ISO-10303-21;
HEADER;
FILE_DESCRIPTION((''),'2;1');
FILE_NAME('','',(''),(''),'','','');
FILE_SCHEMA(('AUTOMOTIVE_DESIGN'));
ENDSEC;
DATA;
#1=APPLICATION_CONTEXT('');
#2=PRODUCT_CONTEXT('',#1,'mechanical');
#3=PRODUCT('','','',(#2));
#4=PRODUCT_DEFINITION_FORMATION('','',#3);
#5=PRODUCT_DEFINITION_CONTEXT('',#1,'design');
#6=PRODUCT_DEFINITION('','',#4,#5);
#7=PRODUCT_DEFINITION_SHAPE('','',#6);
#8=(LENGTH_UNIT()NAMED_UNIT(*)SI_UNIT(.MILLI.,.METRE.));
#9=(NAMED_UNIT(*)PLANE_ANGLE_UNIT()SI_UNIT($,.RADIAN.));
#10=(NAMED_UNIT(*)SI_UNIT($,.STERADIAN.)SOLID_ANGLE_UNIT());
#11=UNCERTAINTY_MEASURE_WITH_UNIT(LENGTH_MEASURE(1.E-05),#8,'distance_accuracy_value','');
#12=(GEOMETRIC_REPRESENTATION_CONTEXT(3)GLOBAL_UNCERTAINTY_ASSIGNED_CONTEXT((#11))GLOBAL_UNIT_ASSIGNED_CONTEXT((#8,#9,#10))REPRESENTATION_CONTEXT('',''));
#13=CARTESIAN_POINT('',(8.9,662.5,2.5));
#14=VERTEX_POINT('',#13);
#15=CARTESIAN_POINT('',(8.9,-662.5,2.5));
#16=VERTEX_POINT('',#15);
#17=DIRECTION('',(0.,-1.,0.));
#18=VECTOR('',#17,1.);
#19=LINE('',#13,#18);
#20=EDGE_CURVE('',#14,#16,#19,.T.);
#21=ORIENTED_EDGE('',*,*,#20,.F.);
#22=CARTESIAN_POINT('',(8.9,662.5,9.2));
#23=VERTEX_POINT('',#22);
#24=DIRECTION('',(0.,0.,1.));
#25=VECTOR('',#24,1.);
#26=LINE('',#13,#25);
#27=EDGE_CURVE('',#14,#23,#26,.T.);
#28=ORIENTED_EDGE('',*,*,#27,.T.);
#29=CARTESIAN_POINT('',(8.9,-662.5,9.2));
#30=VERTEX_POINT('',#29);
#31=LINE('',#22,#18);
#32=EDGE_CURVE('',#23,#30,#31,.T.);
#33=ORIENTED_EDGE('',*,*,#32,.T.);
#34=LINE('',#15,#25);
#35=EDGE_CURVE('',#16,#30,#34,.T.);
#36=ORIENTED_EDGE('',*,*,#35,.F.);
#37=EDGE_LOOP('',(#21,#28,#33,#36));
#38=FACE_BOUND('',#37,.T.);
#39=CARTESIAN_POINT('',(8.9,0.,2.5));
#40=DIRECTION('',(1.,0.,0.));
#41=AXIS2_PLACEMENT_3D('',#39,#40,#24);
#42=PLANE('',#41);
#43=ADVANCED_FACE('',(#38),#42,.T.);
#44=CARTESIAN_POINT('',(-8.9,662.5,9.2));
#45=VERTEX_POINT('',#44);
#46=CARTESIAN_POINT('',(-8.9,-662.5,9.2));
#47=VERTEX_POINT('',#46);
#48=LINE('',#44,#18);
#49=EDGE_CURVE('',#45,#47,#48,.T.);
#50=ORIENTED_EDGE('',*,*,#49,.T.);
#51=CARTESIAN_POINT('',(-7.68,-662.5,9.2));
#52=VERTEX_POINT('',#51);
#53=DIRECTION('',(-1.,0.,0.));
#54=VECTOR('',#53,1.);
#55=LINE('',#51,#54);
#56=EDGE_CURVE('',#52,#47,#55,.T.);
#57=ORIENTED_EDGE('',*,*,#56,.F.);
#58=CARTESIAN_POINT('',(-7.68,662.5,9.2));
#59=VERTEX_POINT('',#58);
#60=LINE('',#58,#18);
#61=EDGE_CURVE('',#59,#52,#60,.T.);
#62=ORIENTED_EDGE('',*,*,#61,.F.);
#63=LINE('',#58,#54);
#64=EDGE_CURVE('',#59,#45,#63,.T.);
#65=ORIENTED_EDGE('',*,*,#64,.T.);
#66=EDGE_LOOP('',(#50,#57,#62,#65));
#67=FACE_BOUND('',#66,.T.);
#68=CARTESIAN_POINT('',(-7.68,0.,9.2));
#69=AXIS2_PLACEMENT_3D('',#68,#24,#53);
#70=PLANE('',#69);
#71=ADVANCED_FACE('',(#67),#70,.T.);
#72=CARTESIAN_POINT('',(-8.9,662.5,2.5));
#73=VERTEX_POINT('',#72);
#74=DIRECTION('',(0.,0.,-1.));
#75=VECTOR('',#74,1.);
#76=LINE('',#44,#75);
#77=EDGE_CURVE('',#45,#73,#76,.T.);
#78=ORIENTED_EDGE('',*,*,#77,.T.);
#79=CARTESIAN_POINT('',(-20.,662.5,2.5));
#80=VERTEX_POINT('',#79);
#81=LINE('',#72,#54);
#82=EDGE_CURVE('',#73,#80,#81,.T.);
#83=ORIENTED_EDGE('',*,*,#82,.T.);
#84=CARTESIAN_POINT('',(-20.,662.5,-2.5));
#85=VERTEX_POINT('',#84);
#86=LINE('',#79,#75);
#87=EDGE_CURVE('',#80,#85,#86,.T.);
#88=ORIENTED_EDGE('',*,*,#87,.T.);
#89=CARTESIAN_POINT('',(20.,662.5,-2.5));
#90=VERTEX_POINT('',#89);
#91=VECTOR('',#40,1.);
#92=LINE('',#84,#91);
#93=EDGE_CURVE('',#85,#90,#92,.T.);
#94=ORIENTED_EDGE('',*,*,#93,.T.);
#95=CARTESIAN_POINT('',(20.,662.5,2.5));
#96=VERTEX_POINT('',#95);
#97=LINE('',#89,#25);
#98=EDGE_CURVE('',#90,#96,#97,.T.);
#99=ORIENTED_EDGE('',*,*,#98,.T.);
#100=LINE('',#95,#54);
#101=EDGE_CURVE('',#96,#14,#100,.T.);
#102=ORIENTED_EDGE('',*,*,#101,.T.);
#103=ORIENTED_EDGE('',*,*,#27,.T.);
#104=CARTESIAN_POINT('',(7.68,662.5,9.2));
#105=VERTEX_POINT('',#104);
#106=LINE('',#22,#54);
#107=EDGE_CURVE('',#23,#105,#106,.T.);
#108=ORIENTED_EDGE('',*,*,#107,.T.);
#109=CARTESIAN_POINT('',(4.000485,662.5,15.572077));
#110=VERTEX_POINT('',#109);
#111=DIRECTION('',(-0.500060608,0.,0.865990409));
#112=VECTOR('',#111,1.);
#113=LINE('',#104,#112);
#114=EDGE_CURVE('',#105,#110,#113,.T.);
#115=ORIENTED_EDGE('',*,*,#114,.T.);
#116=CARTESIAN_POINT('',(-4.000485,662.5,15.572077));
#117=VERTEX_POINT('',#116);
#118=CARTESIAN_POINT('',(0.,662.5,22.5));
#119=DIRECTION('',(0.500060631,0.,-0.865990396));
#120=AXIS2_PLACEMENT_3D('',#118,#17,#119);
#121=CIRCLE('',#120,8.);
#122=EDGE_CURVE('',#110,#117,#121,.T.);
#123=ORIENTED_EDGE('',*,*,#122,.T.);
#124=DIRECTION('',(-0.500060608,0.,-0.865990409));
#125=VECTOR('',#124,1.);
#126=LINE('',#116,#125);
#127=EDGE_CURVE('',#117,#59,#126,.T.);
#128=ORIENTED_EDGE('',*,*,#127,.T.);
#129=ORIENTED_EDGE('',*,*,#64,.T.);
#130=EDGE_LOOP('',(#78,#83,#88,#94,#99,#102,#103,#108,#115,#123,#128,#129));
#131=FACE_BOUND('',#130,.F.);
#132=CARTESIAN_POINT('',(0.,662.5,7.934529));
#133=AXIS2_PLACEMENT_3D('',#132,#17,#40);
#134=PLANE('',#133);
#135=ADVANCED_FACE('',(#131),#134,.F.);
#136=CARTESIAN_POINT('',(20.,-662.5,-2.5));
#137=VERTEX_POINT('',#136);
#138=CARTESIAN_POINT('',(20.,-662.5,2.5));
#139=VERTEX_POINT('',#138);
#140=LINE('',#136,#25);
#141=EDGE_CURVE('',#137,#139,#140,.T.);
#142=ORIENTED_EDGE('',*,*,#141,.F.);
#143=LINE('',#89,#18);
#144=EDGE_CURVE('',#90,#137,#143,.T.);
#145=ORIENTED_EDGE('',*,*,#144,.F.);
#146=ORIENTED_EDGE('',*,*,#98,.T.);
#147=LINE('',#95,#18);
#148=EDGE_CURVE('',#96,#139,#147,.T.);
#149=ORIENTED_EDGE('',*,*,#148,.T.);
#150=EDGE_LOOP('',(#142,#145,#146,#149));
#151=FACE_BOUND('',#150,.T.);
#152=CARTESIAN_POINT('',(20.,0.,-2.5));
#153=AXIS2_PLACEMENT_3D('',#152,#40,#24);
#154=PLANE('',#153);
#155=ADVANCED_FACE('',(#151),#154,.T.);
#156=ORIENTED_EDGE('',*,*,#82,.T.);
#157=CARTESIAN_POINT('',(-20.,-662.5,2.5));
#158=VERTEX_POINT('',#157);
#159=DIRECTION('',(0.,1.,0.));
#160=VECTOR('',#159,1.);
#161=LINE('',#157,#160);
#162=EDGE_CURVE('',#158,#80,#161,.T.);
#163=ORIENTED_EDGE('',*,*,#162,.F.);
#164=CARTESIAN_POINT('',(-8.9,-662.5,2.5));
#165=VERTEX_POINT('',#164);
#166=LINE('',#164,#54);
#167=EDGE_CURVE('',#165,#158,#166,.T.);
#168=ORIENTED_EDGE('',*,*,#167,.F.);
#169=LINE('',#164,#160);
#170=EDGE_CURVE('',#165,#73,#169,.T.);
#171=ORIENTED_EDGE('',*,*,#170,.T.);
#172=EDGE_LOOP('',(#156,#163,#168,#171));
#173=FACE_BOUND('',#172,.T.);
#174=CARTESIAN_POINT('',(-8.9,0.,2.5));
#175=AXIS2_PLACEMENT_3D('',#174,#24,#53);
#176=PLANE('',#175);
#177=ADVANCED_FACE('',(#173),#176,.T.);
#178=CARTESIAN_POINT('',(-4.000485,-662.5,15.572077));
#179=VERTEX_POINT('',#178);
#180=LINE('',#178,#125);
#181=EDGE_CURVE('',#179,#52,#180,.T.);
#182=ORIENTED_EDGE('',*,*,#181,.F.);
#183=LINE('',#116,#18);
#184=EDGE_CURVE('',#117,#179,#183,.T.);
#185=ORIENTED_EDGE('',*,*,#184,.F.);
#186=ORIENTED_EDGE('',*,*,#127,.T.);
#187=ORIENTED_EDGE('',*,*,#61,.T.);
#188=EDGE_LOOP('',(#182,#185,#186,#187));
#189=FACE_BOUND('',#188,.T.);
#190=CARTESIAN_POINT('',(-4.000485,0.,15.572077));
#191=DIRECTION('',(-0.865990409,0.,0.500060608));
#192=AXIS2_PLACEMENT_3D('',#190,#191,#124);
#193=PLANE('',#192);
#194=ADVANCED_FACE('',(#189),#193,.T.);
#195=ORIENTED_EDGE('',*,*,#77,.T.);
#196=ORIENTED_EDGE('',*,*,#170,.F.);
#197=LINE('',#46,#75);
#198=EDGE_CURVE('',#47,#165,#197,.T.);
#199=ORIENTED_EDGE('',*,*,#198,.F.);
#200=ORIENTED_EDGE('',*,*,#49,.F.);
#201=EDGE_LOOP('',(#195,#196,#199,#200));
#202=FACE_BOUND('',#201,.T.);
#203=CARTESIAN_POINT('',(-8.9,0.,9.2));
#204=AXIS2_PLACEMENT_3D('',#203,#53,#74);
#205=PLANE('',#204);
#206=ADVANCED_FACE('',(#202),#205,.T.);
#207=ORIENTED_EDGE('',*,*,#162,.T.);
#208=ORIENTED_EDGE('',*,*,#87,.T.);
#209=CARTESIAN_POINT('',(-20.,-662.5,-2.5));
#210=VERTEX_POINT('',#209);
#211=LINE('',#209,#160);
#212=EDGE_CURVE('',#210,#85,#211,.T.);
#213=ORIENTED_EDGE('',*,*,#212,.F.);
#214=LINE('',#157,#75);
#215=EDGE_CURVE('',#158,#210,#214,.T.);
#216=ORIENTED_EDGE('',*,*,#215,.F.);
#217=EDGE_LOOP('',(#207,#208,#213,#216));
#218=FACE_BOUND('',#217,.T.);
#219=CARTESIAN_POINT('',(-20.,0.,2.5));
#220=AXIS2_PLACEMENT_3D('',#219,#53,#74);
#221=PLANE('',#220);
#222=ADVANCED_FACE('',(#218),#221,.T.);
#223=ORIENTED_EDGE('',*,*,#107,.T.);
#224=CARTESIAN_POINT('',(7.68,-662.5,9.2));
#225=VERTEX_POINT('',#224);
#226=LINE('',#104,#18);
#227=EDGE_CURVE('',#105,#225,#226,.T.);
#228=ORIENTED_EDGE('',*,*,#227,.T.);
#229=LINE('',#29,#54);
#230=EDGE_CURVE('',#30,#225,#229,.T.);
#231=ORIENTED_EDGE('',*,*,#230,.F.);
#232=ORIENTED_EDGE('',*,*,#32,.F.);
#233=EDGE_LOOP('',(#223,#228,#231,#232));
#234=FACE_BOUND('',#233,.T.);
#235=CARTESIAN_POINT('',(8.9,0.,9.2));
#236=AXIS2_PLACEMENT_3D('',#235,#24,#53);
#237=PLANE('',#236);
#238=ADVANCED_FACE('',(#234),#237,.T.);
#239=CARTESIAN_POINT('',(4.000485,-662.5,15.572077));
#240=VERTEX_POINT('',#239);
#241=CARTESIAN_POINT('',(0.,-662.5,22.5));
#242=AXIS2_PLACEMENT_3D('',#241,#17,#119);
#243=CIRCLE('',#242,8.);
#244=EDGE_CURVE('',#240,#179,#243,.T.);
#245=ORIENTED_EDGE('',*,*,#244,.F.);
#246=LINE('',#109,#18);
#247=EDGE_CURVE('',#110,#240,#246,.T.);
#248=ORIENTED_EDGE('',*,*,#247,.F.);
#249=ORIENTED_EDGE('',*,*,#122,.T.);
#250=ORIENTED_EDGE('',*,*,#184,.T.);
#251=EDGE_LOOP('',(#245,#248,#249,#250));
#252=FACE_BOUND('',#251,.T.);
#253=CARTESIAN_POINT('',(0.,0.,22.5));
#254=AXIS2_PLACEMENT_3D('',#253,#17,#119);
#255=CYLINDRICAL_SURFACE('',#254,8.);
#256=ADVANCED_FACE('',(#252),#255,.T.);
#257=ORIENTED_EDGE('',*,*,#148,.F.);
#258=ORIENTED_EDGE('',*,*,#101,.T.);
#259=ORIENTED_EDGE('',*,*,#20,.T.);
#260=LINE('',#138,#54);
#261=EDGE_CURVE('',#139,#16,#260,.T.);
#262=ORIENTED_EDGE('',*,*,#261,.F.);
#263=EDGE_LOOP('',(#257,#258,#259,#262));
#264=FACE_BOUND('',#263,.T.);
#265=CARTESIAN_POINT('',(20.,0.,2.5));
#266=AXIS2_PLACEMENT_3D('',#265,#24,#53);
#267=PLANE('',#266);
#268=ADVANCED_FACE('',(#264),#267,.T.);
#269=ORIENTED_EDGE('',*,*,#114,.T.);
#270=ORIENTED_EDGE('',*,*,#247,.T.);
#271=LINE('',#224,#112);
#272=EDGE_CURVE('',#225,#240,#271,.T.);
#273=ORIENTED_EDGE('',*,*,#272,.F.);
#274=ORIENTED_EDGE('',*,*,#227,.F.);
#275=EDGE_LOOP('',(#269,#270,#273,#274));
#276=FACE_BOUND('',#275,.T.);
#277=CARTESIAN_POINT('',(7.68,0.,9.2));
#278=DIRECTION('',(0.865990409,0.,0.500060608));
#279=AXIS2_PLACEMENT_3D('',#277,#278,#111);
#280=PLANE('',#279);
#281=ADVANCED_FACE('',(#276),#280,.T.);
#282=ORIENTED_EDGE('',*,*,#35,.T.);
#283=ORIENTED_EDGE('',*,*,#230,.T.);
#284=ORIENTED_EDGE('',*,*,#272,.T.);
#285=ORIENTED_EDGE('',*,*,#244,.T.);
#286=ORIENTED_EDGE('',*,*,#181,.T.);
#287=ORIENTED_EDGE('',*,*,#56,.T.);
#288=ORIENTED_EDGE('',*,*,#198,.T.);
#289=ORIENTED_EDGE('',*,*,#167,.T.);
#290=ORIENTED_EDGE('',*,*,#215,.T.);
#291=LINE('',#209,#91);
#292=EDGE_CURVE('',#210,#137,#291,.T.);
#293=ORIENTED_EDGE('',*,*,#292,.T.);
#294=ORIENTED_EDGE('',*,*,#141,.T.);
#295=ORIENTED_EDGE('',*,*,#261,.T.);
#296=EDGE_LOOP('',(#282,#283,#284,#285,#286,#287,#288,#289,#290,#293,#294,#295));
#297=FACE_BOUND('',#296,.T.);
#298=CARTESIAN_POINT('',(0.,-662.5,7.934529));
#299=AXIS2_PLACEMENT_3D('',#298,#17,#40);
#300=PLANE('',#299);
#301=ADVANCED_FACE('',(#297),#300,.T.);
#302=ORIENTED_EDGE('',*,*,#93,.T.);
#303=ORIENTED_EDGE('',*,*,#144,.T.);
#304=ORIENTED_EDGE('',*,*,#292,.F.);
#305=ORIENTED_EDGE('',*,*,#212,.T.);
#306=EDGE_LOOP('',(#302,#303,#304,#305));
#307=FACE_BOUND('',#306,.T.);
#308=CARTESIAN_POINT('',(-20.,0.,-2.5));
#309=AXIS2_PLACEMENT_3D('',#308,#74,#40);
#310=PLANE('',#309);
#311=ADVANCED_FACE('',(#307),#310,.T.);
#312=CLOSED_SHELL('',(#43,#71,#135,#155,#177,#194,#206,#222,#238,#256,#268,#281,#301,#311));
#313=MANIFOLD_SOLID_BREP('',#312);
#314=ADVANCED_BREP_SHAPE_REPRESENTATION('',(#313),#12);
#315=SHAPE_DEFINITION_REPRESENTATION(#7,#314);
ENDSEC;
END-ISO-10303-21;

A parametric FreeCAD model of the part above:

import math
import FreeCAD as App
import Part
import Sketcher
from FreeCAD import Vector
Q = App.Units.Quantity

doc = App.newDocument("Part")
body = doc.addObject("PartDesign::Body", "Body")

# Sketch on XZ plane
sketch1 = body.newObject("Sketcher::SketchObject", "Sketch")
sketch1.AttachmentSupport = (doc.getObject("XZ_Plane"), [""])
sketch1.MapMode = "FlatFace"
sketch1.addGeometry([
    Part.LineSegment(Vector(-20, -2.5, 0), Vector(20, -2.5, 0)),  # 0
    Part.LineSegment(Vector(20, -2.5, 0), Vector(20, 2.5, 0)),  # 1
    Part.LineSegment(Vector(20, 2.5, 0), Vector(8.9, 2.5, 0)),  # 2
    Part.LineSegment(Vector(8.9, 2.5, 0), Vector(8.9, 9.2, 0)),  # 3
    Part.LineSegment(Vector(8.9, 9.2, 0), Vector(7.7, 9.2, 0)),  # 4
    Part.LineSegment(Vector(7.7, 9.2, 0), Vector(4, 15.6, 0)),  # 5
    Part.ArcOfCircle(Part.Circle(Vector(0, 22.5, 0), Vector(0, 0, 1), 8), math.radians(-60), math.radians(240)),  # 6
    Part.LineSegment(Vector(-4, 15.6, 0), Vector(-7.7, 9.2, 0)),  # 7
    Part.LineSegment(Vector(-7.7, 9.2, 0), Vector(-8.9, 9.2, 0)),  # 8
    Part.LineSegment(Vector(-8.9, 9.2, 0), Vector(-8.9, 2.5, 0)),  # 9
    Part.LineSegment(Vector(-8.9, 2.5, 0), Vector(-20, 2.5, 0)),  # 10
    Part.LineSegment(Vector(-20, 2.5, 0), Vector(-20, -2.5, 0)),  # 11
], False)
sketch1.addConstraint([
    Sketcher.Constraint("Coincident", 0, 2, 1, 1),
    Sketcher.Constraint("Coincident", 1, 2, 2, 1),
    Sketcher.Constraint("Coincident", 2, 2, 3, 1),
    Sketcher.Constraint("Coincident", 3, 2, 4, 1),
    Sketcher.Constraint("Coincident", 4, 2, 5, 1),
    Sketcher.Constraint("Coincident", 5, 2, 6, 1),
    Sketcher.Constraint("Coincident", 6, 2, 7, 1),
    Sketcher.Constraint("Coincident", 7, 2, 8, 1),
    Sketcher.Constraint("Coincident", 8, 2, 9, 1),
    Sketcher.Constraint("Coincident", 9, 2, 10, 1),
    Sketcher.Constraint("Coincident", 10, 2, 11, 1),
    Sketcher.Constraint("Coincident", 11, 2, 0, 1),
    Sketcher.Constraint("Horizontal", 0),
    Sketcher.Constraint("Vertical", 1),
    Sketcher.Constraint("Horizontal", 2),
    Sketcher.Constraint("Vertical", 3),
    Sketcher.Constraint("Horizontal", 4),
    Sketcher.Constraint("Horizontal", 8),
    Sketcher.Constraint("Vertical", 9),
    Sketcher.Constraint("Horizontal", 10),
    Sketcher.Constraint("Vertical", 11),
    Sketcher.Constraint("Symmetric", 0, 2, 10, 2, -1, 1),
    Sketcher.Constraint("Symmetric", 5, 2, 6, 2, -2),
    Sketcher.Constraint("Symmetric", 4, 2, 7, 2, -2),
    Sketcher.Constraint("Symmetric", 2, 2, 9, 2, -2),
    Sketcher.Constraint("Radius", 6, Q("8 mm")),
    Sketcher.Constraint("DistanceX", 0, 1, 0, 2, Q("40 mm")),
    Sketcher.Constraint("DistanceY", 1, 1, 1, 2, Q("5 mm")),
    Sketcher.Constraint("DistanceX", 2, 2, 2, 1, Q("11.1 mm")),
    Sketcher.Constraint("DistanceY", 3, 1, 3, 2, Q("6.7 mm")),
    Sketcher.Constraint("DistanceY", 0, 2, 6, 3, Q("25 mm")),
    Sketcher.Constraint("DistanceX", 4, 2, 4, 1, Q("1.22 mm")),
    Sketcher.Constraint("DistanceX", 6, 2, 5, 2, Q("8.00097 mm")),
])
pad1 = body.newObject("PartDesign::Pad", "Pad")
pad1.Profile = sketch1
pad1.Length = 1325
pad1.Midplane = True

doc.recompute()
